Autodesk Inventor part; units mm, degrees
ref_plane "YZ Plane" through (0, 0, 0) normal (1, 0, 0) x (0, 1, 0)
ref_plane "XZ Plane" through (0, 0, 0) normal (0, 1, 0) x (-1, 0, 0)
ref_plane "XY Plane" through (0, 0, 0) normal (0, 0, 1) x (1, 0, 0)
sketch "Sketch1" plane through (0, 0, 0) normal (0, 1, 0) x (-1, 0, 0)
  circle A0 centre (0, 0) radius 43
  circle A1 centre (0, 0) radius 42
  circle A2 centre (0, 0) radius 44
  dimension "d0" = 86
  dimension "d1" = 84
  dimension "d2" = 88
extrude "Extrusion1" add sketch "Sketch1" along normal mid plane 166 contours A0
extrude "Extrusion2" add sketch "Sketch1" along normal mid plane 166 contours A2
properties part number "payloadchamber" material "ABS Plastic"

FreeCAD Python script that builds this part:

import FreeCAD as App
import Part
import Sketcher

doc = App.newDocument("Part")
body = doc.addObject("PartDesign::Body", "Body")

# Sketch on XZ plane
sketch1 = doc.addObject("Sketcher::SketchObject", "Sketch")
body.addObject(sketch1)
sketch1.AttachmentSupport = (doc.XZ_Plane, [""])
sketch1.MapMode = "FlatFace"
sketch1.addGeometry(Part.Circle(App.Vector(0, 0, 0), App.Vector(0, 0, 1), 43), False)
sketch1.addGeometry(Part.Circle(App.Vector(0, 0, 0), App.Vector(0, 0, 1), 42), False)
sketch1.addConstraint(Sketcher.Constraint("Coincident", 0, 3, -1, 1))
sketch1.addConstraint(Sketcher.Constraint("Coincident", 1, 3, -1, 1))
sketch1.addConstraint(Sketcher.Constraint("Diameter", 0, 86.0))
sketch1.addConstraint(Sketcher.Constraint("Diameter", 1, 84.0))
pad1 = doc.addObject("PartDesign::Pad", "Pad")
body.addObject(pad1)
pad1.Profile = sketch1
pad1.Length = 166
pad1.Midplane = True

# Sketch on XZ plane
sketch2 = doc.addObject("Sketcher::SketchObject", "Sketch001")
body.addObject(sketch2)
sketch2.AttachmentSupport = (doc.XZ_Plane, [""])
sketch2.MapMode = "FlatFace"
sketch2.addGeometry(Part.Circle(App.Vector(0, 0, 0), App.Vector(0, 0, 1), 44), False)
sketch2.addGeometry(Part.Circle(App.Vector(0, 0, 0), App.Vector(0, 0, 1), 43), False)
sketch2.addConstraint(Sketcher.Constraint("Coincident", 0, 3, -1, 1))
sketch2.addConstraint(Sketcher.Constraint("Coincident", 1, 3, -1, 1))
sketch2.addConstraint(Sketcher.Constraint("Diameter", 0, 88.0))
sketch2.addConstraint(Sketcher.Constraint("Diameter", 1, 86.0))
pad2 = doc.addObject("PartDesign::Pad", "Pad001")
body.addObject(pad2)
pad2.Profile = sketch2
pad2.Length = 166
pad2.Midplane = True

doc.recompute()
